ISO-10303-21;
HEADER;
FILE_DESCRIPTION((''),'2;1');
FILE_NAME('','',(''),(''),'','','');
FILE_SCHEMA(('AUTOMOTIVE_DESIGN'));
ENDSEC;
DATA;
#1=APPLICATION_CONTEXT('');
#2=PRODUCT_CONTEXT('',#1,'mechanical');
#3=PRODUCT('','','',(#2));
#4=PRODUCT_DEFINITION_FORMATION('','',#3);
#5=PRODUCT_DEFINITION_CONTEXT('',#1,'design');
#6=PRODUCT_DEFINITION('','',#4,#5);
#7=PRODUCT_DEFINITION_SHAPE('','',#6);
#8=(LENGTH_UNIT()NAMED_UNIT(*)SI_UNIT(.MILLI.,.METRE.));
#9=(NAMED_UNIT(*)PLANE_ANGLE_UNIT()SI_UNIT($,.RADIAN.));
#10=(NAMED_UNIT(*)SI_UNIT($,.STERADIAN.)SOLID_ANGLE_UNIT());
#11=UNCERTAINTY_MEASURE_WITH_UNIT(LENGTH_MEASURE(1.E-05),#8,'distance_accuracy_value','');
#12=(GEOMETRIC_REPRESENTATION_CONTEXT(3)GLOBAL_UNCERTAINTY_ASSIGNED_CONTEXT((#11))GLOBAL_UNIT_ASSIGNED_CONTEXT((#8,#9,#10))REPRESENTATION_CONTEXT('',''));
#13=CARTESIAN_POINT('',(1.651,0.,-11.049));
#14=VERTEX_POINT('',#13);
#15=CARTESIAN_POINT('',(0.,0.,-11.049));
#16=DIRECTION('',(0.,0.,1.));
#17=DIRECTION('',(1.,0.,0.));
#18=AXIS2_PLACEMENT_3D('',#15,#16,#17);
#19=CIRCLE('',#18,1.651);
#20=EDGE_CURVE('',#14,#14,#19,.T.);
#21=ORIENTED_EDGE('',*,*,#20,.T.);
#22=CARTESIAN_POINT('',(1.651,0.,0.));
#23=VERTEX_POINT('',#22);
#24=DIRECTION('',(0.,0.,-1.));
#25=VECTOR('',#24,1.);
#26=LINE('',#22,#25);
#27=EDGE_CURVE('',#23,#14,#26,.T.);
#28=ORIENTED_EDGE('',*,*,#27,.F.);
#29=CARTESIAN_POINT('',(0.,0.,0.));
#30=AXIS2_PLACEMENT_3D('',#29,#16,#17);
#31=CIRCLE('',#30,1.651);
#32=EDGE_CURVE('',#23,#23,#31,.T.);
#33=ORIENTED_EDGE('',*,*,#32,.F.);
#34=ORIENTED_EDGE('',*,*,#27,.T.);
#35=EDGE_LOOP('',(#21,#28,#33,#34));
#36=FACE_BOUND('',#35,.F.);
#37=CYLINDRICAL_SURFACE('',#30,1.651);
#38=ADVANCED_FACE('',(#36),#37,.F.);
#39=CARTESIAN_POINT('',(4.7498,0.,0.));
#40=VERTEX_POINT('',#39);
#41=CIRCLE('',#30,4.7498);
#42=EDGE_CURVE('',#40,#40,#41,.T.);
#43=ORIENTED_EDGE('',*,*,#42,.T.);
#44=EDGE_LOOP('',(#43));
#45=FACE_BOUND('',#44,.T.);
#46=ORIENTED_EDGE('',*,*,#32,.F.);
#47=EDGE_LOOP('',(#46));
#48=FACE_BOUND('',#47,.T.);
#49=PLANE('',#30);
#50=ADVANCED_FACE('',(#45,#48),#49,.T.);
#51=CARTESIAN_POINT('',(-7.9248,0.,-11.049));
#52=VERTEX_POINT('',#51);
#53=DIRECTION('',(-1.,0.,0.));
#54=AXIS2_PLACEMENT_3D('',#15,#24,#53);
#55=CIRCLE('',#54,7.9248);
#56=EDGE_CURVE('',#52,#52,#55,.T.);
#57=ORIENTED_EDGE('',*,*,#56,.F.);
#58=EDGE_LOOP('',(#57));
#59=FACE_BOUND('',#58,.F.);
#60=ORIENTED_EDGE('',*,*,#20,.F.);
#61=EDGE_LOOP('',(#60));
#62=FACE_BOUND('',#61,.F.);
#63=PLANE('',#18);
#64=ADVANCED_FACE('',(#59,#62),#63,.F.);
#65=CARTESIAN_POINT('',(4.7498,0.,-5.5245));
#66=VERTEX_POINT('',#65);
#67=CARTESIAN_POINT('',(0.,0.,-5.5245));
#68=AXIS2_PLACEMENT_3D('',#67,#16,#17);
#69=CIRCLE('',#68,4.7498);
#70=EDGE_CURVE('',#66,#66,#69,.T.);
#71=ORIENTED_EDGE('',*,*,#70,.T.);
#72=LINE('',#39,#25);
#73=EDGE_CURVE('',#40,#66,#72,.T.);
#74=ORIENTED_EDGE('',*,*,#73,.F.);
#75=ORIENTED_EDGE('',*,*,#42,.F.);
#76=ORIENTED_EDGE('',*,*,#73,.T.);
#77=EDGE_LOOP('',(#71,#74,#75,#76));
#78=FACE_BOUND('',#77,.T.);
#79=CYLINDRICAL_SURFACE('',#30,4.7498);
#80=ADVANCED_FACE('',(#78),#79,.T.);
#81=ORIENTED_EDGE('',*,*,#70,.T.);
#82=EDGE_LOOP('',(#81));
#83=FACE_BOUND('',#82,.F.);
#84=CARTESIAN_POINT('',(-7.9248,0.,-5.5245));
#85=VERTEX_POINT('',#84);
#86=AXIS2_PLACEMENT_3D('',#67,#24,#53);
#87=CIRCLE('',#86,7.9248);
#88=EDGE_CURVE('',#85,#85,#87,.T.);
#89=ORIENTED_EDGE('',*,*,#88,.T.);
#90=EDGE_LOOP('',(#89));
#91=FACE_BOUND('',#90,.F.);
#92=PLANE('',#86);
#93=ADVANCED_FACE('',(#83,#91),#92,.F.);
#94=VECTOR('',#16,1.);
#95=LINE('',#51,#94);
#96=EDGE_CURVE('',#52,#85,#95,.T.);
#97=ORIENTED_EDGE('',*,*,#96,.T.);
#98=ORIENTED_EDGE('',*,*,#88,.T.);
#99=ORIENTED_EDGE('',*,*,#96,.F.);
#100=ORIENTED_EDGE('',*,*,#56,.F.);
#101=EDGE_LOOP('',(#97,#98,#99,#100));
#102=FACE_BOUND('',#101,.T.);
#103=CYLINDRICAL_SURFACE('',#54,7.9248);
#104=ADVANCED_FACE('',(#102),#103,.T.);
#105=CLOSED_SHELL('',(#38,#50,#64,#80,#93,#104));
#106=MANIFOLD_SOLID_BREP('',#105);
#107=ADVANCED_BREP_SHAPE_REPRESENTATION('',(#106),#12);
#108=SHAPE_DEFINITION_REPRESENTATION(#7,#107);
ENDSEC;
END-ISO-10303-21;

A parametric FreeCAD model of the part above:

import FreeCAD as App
import Part
import Sketcher

V = App.Vector
Q = App.Units.Quantity

doc = App.newDocument("Part")
params = doc.addObject("Spreadsheet::Sheet", "Params")
for row, (alias, value) in enumerate([
    ("sketch1_diameter", "0.13 in"),
    ("sketch1_diameter2", "0.374 in"),
    ("pad1_length", "0.435 in"),
    ("sketch2_diameter", "0.624 in"),
    ("sketch2_diameter2", "0.374 in"),
    ("pad2_length", "0.2175 in"),
], start=1):
    params.set(f"A{row}", alias)
    params.set(f"B{row}", "=" + value)
    params.setAlias(f"B{row}", alias)

body = doc.addObject("PartDesign::Body", "Body")

# Sketch on XY plane
sketch1 = body.newObject("Sketcher::SketchObject", "Sketch")
sketch1.AttachmentSupport = (doc.getObject("XY_Plane"), [""])
sketch1.MapMode = "FlatFace"
sketch1.addGeometry([
    Part.Circle(V(0, 0, 0), V(0, 0, 1), 4.7),
    Part.Circle(V(0, 0, 0), V(0, 0, 1), 1.7),
], False)
sketch1.addConstraint([
    Sketcher.Constraint("Coincident", 0, 3, -1, 1),
    Sketcher.Constraint("Coincident", 1, 3, -1, 1),
    Sketcher.Constraint("Diameter", 1, Q("0.13 in")),
    Sketcher.Constraint("Diameter", 0, Q("0.374 in")),
])
sketch1.setExpression("Constraints[2]", "Params.sketch1_diameter")
sketch1.setExpression("Constraints[3]", "Params.sketch1_diameter2")
pad1 = body.newObject("PartDesign::Pad", "Pad")
pad1.Profile = sketch1
pad1.setExpression("Length", "Params.pad1_length")
pad1.Reversed = True

# Sketch on XY plane
sketch2 = body.newObject("Sketcher::SketchObject", "Sketch001")
sketch2.AttachmentSupport = (doc.getObject("XY_Plane"), [""])
sketch2.MapMode = "FlatFace"
sketch2.AttachmentOffset = App.Placement(V(0, 0, -0.435 * 25.4), App.Rotation())
sketch2.addGeometry([
    Part.Circle(V(0, 0, 0), V(0, 0, 1), 7.9),
    Part.Circle(V(0, 0, 0), V(0, 0, 1), 4.7),
], False)
sketch2.addConstraint([
    Sketcher.Constraint("Coincident", 0, 3, -1, 1),
    Sketcher.Constraint("Coincident", 1, 3, -1, 1),
    Sketcher.Constraint("Diameter", 0, Q("0.624 in")),
    Sketcher.Constraint("Diameter", 1, Q("0.374 in")),
])
sketch2.setExpression("Constraints[2]", "Params.sketch2_diameter")
sketch2.setExpression("Constraints[3]", "Params.sketch2_diameter2")
pad2 = body.newObject("PartDesign::Pad", "Pad001")
pad2.Profile = sketch2
pad2.setExpression("Length", "Params.pad2_length")

doc.recompute()
